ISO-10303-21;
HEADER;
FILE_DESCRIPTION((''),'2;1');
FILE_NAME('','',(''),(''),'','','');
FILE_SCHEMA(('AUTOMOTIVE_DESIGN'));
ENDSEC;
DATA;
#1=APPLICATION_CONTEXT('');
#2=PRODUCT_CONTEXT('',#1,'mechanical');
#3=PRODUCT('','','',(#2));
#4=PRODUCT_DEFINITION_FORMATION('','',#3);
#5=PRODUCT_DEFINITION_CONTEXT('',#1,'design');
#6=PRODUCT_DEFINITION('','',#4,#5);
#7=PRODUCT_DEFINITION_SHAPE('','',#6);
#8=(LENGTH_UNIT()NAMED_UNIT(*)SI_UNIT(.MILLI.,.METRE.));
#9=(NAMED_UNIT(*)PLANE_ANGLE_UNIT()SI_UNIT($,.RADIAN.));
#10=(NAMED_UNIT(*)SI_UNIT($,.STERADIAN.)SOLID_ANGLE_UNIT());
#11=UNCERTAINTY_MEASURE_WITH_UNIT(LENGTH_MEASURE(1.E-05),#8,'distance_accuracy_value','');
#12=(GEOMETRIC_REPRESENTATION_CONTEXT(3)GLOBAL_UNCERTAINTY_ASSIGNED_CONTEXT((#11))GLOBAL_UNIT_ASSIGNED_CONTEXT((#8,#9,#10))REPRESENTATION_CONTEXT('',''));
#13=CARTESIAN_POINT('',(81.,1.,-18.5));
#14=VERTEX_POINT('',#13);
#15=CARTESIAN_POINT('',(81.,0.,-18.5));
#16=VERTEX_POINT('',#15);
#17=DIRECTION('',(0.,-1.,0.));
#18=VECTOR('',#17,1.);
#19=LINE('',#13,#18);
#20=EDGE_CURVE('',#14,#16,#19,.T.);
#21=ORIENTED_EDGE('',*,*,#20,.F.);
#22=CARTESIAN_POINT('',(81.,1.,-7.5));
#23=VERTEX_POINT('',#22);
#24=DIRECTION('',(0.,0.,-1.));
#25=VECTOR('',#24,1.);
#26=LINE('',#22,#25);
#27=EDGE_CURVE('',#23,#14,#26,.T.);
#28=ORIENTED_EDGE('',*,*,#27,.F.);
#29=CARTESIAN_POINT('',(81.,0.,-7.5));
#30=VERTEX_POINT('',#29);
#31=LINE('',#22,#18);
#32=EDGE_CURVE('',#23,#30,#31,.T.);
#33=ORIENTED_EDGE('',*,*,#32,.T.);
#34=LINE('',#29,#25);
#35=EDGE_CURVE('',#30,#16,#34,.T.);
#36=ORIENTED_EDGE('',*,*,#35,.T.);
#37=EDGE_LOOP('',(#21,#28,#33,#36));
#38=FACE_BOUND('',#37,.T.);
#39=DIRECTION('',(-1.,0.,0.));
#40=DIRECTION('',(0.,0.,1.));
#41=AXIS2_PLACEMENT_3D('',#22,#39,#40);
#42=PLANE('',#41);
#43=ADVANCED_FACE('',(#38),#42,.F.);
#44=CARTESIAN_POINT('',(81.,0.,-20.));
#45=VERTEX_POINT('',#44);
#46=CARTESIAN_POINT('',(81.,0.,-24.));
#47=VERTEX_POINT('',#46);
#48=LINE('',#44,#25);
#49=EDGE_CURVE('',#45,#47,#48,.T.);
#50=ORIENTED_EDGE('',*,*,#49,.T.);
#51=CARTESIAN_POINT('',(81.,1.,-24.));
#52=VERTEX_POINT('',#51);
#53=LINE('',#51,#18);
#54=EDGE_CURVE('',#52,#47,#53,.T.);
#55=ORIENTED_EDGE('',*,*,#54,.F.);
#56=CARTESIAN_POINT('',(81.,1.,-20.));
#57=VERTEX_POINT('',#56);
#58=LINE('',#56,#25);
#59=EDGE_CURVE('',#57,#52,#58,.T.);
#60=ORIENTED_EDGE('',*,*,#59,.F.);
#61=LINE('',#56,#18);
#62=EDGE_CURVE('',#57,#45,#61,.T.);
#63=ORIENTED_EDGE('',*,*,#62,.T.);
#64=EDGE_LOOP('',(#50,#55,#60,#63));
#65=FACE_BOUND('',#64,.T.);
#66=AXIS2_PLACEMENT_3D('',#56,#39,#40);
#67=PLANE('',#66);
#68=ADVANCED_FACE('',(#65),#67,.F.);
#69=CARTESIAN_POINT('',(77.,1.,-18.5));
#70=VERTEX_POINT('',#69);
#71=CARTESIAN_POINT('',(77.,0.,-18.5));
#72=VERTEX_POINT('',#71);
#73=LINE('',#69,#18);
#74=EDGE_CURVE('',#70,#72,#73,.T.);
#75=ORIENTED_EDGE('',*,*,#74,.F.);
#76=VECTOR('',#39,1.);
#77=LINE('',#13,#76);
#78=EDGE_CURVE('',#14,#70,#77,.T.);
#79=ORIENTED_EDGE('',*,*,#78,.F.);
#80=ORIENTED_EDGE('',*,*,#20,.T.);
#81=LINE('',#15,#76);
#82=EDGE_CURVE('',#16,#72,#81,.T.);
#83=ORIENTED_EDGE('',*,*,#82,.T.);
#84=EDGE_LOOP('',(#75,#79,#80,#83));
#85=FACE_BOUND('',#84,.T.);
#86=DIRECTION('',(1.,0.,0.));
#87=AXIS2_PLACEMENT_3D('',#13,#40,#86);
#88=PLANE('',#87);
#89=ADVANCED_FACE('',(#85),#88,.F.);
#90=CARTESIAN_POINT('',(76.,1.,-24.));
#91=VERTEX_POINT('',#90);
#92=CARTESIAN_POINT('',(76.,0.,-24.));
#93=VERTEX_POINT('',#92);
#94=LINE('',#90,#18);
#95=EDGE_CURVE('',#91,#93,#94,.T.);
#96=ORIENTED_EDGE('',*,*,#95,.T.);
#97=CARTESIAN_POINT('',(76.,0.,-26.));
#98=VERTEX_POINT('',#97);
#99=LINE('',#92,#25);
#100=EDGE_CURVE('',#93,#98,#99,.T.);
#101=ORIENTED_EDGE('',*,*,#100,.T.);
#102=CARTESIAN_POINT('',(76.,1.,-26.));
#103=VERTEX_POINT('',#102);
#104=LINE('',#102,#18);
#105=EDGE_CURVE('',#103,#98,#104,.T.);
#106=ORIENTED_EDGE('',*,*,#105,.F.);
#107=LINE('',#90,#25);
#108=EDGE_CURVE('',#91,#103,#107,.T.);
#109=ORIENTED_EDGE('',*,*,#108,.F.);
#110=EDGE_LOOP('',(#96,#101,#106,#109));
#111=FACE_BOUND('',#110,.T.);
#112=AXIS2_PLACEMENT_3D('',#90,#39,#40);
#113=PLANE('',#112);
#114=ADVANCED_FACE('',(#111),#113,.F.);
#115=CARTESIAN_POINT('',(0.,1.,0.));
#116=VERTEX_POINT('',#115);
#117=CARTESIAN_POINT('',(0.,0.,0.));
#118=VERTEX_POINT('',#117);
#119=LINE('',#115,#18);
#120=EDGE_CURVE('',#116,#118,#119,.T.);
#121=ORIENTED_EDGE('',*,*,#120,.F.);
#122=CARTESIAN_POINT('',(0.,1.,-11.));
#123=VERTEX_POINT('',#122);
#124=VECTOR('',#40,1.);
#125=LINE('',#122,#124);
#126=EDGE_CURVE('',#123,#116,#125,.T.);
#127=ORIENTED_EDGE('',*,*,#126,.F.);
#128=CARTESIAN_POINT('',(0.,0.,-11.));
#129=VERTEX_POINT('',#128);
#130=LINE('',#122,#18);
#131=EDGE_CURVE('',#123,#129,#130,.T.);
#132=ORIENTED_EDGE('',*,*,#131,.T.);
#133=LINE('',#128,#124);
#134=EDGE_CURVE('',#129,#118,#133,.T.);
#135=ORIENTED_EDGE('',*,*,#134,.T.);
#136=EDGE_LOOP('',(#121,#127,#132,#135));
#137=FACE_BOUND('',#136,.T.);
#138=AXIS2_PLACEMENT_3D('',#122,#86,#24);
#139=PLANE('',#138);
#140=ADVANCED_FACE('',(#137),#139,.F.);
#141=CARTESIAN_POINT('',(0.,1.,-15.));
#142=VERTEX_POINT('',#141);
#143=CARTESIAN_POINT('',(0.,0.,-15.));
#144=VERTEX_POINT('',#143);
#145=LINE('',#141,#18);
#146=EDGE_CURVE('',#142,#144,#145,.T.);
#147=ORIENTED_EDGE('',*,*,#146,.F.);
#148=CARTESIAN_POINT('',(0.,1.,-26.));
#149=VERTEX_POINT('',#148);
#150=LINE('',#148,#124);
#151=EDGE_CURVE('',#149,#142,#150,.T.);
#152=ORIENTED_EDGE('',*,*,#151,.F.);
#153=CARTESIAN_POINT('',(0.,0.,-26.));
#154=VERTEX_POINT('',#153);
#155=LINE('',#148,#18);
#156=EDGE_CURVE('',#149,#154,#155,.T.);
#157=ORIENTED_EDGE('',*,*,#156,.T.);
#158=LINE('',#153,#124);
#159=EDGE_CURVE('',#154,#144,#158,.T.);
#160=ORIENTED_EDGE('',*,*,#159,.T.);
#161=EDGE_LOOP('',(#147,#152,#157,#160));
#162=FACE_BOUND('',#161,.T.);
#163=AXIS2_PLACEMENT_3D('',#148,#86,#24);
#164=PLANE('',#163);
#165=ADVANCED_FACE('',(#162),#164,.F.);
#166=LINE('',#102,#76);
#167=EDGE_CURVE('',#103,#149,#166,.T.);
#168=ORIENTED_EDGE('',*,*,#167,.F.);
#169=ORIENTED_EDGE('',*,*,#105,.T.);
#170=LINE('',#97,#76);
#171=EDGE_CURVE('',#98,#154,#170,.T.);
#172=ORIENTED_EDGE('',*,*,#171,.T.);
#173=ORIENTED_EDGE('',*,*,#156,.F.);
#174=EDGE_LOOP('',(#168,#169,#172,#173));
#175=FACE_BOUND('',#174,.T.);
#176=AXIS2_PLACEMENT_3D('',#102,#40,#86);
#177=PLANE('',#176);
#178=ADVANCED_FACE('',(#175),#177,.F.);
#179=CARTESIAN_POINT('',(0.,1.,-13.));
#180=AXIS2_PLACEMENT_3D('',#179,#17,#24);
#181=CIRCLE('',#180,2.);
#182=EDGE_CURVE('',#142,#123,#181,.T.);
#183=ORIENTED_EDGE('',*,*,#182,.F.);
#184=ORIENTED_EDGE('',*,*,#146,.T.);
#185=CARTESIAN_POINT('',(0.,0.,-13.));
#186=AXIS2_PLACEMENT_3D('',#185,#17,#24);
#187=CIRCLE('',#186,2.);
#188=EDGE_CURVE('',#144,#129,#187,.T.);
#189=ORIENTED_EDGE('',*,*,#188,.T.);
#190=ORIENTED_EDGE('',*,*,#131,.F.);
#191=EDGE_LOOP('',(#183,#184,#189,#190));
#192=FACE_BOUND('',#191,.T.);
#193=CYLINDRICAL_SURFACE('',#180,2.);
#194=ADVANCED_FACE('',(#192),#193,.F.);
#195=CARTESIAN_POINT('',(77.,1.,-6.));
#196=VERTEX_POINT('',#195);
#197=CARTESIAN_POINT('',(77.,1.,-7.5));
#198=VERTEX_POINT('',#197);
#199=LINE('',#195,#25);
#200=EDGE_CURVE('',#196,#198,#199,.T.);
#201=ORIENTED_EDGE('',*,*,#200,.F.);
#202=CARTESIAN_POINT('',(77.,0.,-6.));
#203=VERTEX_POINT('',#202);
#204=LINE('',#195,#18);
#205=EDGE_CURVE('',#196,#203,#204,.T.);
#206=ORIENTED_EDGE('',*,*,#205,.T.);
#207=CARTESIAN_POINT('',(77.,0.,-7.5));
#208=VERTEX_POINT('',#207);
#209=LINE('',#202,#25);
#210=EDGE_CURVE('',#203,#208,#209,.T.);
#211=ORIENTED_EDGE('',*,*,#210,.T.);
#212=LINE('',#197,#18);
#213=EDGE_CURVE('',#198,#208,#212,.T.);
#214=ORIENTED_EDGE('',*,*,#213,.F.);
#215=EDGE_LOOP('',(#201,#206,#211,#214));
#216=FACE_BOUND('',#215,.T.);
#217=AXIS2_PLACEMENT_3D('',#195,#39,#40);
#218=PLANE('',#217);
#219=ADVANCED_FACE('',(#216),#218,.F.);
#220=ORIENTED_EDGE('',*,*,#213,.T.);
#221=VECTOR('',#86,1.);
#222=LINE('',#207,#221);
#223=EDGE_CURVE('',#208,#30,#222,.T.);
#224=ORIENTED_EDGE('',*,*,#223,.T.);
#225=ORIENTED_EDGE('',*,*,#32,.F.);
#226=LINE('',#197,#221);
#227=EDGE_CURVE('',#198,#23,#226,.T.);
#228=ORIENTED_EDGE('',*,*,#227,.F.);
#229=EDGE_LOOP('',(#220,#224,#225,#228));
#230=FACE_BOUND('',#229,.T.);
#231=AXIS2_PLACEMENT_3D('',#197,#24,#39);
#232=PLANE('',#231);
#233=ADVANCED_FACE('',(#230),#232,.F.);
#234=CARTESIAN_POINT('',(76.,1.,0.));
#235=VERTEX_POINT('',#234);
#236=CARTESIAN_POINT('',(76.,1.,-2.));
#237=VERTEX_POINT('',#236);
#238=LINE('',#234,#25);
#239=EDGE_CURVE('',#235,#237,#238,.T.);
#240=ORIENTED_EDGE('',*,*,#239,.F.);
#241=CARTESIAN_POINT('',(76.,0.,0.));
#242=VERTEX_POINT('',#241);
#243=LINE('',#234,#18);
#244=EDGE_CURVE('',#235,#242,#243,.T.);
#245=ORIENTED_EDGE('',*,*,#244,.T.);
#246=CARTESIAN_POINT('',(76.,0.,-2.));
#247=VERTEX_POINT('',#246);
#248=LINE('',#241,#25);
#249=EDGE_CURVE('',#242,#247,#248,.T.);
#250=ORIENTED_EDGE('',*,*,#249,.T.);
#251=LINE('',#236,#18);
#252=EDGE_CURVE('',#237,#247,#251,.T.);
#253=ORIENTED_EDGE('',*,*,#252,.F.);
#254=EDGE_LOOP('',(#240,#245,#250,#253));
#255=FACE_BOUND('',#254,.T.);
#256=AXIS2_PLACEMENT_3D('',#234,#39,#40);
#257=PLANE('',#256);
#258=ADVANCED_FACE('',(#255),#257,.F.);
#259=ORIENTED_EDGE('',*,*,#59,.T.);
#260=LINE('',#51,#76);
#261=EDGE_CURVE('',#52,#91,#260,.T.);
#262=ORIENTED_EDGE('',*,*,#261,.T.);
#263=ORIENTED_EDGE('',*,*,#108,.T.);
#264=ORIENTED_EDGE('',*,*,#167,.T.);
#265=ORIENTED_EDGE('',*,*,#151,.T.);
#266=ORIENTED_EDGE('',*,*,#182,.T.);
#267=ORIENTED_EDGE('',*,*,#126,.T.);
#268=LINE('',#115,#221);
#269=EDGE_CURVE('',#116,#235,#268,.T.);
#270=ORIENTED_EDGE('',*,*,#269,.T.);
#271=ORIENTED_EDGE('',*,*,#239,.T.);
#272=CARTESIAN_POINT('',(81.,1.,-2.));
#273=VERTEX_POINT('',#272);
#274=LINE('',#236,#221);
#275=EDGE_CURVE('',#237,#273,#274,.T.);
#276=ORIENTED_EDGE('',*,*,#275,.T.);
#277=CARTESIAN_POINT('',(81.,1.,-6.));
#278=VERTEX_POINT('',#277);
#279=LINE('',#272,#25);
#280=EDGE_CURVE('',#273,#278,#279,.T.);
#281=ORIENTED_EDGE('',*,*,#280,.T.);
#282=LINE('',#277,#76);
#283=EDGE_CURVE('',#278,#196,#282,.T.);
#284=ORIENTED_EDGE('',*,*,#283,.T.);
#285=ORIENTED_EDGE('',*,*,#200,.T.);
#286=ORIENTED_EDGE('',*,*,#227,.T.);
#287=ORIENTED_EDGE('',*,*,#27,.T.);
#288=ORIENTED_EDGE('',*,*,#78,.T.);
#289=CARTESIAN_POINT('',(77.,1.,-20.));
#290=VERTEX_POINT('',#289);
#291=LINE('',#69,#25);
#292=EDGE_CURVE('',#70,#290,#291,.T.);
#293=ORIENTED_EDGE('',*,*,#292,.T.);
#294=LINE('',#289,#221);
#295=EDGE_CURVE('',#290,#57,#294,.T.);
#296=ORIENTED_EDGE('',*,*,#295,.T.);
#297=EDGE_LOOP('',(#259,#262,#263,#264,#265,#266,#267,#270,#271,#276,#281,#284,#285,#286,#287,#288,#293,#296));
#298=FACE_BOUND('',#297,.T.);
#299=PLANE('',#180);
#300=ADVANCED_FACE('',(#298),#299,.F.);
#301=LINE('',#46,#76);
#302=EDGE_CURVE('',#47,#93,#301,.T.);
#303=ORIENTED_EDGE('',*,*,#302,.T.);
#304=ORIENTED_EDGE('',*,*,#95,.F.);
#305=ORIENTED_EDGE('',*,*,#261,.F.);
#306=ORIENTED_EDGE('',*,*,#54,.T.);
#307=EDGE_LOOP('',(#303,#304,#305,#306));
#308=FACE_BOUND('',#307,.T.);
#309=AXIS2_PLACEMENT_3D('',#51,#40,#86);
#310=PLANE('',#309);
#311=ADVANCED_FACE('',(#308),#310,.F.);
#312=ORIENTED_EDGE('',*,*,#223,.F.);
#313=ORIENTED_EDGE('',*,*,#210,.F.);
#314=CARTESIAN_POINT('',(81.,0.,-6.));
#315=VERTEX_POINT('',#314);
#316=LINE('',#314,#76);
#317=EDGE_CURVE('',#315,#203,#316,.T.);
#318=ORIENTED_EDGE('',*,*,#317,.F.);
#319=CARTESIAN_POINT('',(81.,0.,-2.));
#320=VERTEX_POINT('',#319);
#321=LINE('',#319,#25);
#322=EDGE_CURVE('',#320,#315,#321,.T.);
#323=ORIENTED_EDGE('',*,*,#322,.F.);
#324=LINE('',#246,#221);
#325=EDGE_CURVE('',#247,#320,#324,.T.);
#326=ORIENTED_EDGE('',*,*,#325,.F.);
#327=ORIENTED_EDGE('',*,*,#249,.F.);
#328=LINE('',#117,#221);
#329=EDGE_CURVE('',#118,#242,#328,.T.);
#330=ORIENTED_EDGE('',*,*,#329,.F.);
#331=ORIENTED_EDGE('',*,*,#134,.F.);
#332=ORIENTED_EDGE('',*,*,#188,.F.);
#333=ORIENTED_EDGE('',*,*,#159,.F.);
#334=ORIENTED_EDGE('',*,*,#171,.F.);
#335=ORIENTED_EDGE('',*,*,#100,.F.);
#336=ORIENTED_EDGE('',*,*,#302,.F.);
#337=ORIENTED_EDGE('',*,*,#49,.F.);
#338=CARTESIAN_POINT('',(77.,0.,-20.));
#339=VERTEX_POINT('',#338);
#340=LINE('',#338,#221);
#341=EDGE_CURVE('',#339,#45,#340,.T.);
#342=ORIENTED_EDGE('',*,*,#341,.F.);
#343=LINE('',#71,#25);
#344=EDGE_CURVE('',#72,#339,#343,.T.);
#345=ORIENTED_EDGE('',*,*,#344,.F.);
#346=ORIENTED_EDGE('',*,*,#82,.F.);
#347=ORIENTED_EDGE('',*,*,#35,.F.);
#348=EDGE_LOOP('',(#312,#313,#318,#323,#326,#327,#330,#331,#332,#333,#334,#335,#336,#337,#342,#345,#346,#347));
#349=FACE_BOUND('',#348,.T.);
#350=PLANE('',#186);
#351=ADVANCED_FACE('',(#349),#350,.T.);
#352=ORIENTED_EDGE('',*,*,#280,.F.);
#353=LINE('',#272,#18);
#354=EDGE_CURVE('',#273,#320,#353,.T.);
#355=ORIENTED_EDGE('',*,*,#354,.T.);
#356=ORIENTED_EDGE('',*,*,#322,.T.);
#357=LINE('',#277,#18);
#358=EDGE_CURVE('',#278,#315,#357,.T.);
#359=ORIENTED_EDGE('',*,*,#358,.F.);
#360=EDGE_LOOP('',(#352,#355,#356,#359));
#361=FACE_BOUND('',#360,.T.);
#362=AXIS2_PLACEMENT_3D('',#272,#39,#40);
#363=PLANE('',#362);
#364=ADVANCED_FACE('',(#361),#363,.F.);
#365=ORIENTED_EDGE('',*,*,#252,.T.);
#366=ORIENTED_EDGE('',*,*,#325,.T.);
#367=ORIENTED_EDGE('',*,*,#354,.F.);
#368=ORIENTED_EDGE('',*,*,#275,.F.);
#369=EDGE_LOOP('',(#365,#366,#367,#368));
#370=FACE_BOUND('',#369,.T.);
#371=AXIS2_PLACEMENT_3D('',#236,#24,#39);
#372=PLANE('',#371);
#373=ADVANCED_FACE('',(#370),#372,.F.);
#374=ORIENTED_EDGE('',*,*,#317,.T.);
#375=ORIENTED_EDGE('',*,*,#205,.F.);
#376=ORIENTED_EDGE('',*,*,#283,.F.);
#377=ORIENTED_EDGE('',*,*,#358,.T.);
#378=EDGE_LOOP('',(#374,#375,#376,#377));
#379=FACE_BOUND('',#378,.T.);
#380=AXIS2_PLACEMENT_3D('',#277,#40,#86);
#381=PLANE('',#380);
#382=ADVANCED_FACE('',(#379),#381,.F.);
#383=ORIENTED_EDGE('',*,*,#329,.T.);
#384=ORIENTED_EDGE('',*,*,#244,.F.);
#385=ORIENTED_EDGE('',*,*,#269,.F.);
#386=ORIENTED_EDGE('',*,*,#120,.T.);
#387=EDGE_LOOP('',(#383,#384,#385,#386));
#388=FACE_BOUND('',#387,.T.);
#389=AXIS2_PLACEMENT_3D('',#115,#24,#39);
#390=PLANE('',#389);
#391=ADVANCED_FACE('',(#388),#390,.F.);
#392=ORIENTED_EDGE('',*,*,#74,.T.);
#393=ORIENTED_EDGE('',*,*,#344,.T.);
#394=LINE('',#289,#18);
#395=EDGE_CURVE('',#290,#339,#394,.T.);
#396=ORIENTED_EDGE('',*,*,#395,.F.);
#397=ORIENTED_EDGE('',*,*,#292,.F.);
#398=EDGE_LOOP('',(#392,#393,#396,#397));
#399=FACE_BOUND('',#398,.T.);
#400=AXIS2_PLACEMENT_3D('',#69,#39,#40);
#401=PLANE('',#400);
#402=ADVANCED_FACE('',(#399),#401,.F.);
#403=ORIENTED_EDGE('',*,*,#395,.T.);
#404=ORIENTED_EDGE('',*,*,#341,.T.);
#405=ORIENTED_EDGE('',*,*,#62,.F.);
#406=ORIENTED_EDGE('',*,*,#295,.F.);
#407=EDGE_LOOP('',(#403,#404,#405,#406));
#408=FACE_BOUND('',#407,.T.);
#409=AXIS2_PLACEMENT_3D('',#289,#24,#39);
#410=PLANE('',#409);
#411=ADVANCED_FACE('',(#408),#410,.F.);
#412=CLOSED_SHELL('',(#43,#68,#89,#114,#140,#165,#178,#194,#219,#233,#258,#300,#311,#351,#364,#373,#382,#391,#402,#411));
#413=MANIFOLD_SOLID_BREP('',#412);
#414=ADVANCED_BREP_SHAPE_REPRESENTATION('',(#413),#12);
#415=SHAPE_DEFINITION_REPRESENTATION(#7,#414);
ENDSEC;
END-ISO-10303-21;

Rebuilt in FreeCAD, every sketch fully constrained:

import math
import FreeCAD as App
import Part
import Sketcher
from FreeCAD import Vector
Q = App.Units.Quantity

doc = App.newDocument("Part")
body = doc.addObject("PartDesign::Body", "Body")

sketch1 = body.newObject("Sketcher::SketchObject", "Sketch")
sketch1.AttachmentSupport = (doc.getObject("XZ_Plane"), [""])
sketch1.MapMode = "FlatFace"
sketch1.addGeometry(Part.LineSegment(Vector(0, 0, 0), Vector(76, 0, 0)), False)
sketch1.addGeometry(Part.LineSegment(Vector(76, 0, 0), Vector(76, -2, 0)), False)
sketch1.addGeometry(Part.LineSegment(Vector(76, -2, 0), Vector(81, -2, 0)), False)
sketch1.addGeometry(Part.LineSegment(Vector(81, -2, 0), Vector(81, -6, 0)), False)
sketch1.addGeometry(Part.LineSegment(Vector(81, -6, 0), Vector(77, -6, 0)), False)
sketch1.addGeometry(Part.LineSegment(Vector(77, -6, 0), Vector(77, -7.5, 0)), False)
sketch1.addGeometry(Part.LineSegment(Vector(77, -7.5, 0), Vector(81, -7.5, 0)), False)
sketch1.addGeometry(Part.LineSegment(Vector(81, -7.5, 0), Vector(81, -18.5, 0)), False)
sketch1.addGeometry(Part.LineSegment(Vector(81, -18.5, 0), Vector(77, -18.5, 0)), False)
sketch1.addGeometry(Part.LineSegment(Vector(77, -18.5, 0), Vector(77, -20, 0)), False)
sketch1.addGeometry(Part.LineSegment(Vector(77, -20, 0), Vector(81, -20, 0)), False)
sketch1.addGeometry(Part.LineSegment(Vector(81, -20, 0), Vector(81, -24, 0)), False)
sketch1.addGeometry(Part.LineSegment(Vector(81, -24, 0), Vector(76, -24, 0)), False)
sketch1.addGeometry(Part.LineSegment(Vector(76, -24, 0), Vector(76, -26, 0)), False)
sketch1.addGeometry(Part.LineSegment(Vector(76, -26, 0), Vector(0, -26, 0)), False)
sketch1.addGeometry(Part.LineSegment(Vector(0, -26, 0), Vector(0, -15, 0)), False)
sketch1.addGeometry(Part.ArcOfCircle(Part.Circle(Vector(0, -13, 0), Vector(0, 0, 1), 2), math.radians(-90), math.radians(90)), False)
sketch1.addGeometry(Part.LineSegment(Vector(0, -11, 0), Vector(0, 0, 0)), False)
sketch1.addConstraint(Sketcher.Constraint("Coincident", 0, 2, 1, 1))
sketch1.addConstraint(Sketcher.Constraint("Coincident", 1, 2, 2, 1))
sketch1.addConstraint(Sketcher.Constraint("Coincident", 2, 2, 3, 1))
sketch1.addConstraint(Sketcher.Constraint("Coincident", 3, 2, 4, 1))
sketch1.addConstraint(Sketcher.Constraint("Coincident", 4, 2, 5, 1))
sketch1.addConstraint(Sketcher.Constraint("Coincident", 5, 2, 6, 1))
sketch1.addConstraint(Sketcher.Constraint("Coincident", 6, 2, 7, 1))
sketch1.addConstraint(Sketcher.Constraint("Coincident", 7, 2, 8, 1))
sketch1.addConstraint(Sketcher.Constraint("Coincident", 8, 2, 9, 1))
sketch1.addConstraint(Sketcher.Constraint("Coincident", 9, 2, 10, 1))
sketch1.addConstraint(Sketcher.Constraint("Coincident", 10, 2, 11, 1))
sketch1.addConstraint(Sketcher.Constraint("Coincident", 11, 2, 12, 1))
sketch1.addConstraint(Sketcher.Constraint("Coincident", 12, 2, 13, 1))
sketch1.addConstraint(Sketcher.Constraint("Coincident", 13, 2, 14, 1))
sketch1.addConstraint(Sketcher.Constraint("Coincident", 14, 2, 15, 1))
sketch1.addConstraint(Sketcher.Constraint("Coincident", 15, 2, 16, 1))
sketch1.addConstraint(Sketcher.Constraint("Coincident", 16, 2, 17, 1))
sketch1.addConstraint(Sketcher.Constraint("Coincident", 17, 2, 0, 1))
sketch1.addConstraint(Sketcher.Constraint("Horizontal", 0))
sketch1.addConstraint(Sketcher.Constraint("Vertical", 1))
sketch1.addConstraint(Sketcher.Constraint("Horizontal", 2))
sketch1.addConstraint(Sketcher.Constraint("Vertical", 3))
sketch1.addConstraint(Sketcher.Constraint("Horizontal", 4))
sketch1.addConstraint(Sketcher.Constraint("Vertical", 5))
sketch1.addConstraint(Sketcher.Constraint("Horizontal", 6))
sketch1.addConstraint(Sketcher.Constraint("Vertical", 7))
sketch1.addConstraint(Sketcher.Constraint("Horizontal", 8))
sketch1.addConstraint(Sketcher.Constraint("Vertical", 9))
sketch1.addConstraint(Sketcher.Constraint("Horizontal", 10))
sketch1.addConstraint(Sketcher.Constraint("Vertical", 11))
sketch1.addConstraint(Sketcher.Constraint("Horizontal", 12))
sketch1.addConstraint(Sketcher.Constraint("Vertical", 13))
sketch1.addConstraint(Sketcher.Constraint("Horizontal", 14))
sketch1.addConstraint(Sketcher.Constraint("Vertical", 15))
sketch1.addConstraint(Sketcher.Constraint("Vertical", 17))
sketch1.addConstraint(Sketcher.Constraint("Coincident", 17, 2, -1, 1))
sketch1.addConstraint(Sketcher.Constraint("PointOnObject", 16, 3, -2))
sketch1.addConstraint(Sketcher.Constraint("PointOnObject", 14, 2, -2))
sketch1.addConstraint(Sketcher.Constraint("Vertical", 3, 2, 6, 2))
sketch1.addConstraint(Sketcher.Constraint("Vertical", 5, 2, 8, 2))
sketch1.addConstraint(Sketcher.Constraint("Vertical", 7, 2, 10, 2))
sketch1.addConstraint(Sketcher.Constraint("Vertical", 1, 2, 12, 2))
sketch1.addConstraint(Sketcher.Constraint("Equal", 10, 3))
sketch1.addConstraint(Sketcher.Constraint("Equal", 5, 9))
sketch1.addConstraint(Sketcher.Constraint("Equal", 3, 11))
sketch1.addConstraint(Sketcher.Constraint("Equal", 1, 13))
sketch1.addConstraint(Sketcher.Constraint("Equal", 7, 15))
sketch1.addConstraint(Sketcher.Constraint("Equal", 15, 17))
sketch1.addConstraint(Sketcher.Constraint("Radius", 16, Q("2 mm")))
sketch1.addConstraint(Sketcher.Constraint("DistanceX", 0, 1, 0, 2, Q("76 mm")))
sketch1.addConstraint(Sketcher.Constraint("DistanceX", 2, 1, 2, 2, Q("5 mm")))
sketch1.addConstraint(Sketcher.Constraint("DistanceX", 4, 2, 4, 1, Q("4 mm")))
sketch1.addConstraint(Sketcher.Constraint("DistanceY", 1, 2, 1, 1, Q("2 mm")))
sketch1.addConstraint(Sketcher.Constraint("DistanceY", 7, 2, 7, 1, Q("11 mm")))
pad1 = body.newObject("PartDesign::Pad", "Pad")
pad1.Profile = sketch1
pad1.Length = 1
pad1.Reversed = True

doc.recompute()
